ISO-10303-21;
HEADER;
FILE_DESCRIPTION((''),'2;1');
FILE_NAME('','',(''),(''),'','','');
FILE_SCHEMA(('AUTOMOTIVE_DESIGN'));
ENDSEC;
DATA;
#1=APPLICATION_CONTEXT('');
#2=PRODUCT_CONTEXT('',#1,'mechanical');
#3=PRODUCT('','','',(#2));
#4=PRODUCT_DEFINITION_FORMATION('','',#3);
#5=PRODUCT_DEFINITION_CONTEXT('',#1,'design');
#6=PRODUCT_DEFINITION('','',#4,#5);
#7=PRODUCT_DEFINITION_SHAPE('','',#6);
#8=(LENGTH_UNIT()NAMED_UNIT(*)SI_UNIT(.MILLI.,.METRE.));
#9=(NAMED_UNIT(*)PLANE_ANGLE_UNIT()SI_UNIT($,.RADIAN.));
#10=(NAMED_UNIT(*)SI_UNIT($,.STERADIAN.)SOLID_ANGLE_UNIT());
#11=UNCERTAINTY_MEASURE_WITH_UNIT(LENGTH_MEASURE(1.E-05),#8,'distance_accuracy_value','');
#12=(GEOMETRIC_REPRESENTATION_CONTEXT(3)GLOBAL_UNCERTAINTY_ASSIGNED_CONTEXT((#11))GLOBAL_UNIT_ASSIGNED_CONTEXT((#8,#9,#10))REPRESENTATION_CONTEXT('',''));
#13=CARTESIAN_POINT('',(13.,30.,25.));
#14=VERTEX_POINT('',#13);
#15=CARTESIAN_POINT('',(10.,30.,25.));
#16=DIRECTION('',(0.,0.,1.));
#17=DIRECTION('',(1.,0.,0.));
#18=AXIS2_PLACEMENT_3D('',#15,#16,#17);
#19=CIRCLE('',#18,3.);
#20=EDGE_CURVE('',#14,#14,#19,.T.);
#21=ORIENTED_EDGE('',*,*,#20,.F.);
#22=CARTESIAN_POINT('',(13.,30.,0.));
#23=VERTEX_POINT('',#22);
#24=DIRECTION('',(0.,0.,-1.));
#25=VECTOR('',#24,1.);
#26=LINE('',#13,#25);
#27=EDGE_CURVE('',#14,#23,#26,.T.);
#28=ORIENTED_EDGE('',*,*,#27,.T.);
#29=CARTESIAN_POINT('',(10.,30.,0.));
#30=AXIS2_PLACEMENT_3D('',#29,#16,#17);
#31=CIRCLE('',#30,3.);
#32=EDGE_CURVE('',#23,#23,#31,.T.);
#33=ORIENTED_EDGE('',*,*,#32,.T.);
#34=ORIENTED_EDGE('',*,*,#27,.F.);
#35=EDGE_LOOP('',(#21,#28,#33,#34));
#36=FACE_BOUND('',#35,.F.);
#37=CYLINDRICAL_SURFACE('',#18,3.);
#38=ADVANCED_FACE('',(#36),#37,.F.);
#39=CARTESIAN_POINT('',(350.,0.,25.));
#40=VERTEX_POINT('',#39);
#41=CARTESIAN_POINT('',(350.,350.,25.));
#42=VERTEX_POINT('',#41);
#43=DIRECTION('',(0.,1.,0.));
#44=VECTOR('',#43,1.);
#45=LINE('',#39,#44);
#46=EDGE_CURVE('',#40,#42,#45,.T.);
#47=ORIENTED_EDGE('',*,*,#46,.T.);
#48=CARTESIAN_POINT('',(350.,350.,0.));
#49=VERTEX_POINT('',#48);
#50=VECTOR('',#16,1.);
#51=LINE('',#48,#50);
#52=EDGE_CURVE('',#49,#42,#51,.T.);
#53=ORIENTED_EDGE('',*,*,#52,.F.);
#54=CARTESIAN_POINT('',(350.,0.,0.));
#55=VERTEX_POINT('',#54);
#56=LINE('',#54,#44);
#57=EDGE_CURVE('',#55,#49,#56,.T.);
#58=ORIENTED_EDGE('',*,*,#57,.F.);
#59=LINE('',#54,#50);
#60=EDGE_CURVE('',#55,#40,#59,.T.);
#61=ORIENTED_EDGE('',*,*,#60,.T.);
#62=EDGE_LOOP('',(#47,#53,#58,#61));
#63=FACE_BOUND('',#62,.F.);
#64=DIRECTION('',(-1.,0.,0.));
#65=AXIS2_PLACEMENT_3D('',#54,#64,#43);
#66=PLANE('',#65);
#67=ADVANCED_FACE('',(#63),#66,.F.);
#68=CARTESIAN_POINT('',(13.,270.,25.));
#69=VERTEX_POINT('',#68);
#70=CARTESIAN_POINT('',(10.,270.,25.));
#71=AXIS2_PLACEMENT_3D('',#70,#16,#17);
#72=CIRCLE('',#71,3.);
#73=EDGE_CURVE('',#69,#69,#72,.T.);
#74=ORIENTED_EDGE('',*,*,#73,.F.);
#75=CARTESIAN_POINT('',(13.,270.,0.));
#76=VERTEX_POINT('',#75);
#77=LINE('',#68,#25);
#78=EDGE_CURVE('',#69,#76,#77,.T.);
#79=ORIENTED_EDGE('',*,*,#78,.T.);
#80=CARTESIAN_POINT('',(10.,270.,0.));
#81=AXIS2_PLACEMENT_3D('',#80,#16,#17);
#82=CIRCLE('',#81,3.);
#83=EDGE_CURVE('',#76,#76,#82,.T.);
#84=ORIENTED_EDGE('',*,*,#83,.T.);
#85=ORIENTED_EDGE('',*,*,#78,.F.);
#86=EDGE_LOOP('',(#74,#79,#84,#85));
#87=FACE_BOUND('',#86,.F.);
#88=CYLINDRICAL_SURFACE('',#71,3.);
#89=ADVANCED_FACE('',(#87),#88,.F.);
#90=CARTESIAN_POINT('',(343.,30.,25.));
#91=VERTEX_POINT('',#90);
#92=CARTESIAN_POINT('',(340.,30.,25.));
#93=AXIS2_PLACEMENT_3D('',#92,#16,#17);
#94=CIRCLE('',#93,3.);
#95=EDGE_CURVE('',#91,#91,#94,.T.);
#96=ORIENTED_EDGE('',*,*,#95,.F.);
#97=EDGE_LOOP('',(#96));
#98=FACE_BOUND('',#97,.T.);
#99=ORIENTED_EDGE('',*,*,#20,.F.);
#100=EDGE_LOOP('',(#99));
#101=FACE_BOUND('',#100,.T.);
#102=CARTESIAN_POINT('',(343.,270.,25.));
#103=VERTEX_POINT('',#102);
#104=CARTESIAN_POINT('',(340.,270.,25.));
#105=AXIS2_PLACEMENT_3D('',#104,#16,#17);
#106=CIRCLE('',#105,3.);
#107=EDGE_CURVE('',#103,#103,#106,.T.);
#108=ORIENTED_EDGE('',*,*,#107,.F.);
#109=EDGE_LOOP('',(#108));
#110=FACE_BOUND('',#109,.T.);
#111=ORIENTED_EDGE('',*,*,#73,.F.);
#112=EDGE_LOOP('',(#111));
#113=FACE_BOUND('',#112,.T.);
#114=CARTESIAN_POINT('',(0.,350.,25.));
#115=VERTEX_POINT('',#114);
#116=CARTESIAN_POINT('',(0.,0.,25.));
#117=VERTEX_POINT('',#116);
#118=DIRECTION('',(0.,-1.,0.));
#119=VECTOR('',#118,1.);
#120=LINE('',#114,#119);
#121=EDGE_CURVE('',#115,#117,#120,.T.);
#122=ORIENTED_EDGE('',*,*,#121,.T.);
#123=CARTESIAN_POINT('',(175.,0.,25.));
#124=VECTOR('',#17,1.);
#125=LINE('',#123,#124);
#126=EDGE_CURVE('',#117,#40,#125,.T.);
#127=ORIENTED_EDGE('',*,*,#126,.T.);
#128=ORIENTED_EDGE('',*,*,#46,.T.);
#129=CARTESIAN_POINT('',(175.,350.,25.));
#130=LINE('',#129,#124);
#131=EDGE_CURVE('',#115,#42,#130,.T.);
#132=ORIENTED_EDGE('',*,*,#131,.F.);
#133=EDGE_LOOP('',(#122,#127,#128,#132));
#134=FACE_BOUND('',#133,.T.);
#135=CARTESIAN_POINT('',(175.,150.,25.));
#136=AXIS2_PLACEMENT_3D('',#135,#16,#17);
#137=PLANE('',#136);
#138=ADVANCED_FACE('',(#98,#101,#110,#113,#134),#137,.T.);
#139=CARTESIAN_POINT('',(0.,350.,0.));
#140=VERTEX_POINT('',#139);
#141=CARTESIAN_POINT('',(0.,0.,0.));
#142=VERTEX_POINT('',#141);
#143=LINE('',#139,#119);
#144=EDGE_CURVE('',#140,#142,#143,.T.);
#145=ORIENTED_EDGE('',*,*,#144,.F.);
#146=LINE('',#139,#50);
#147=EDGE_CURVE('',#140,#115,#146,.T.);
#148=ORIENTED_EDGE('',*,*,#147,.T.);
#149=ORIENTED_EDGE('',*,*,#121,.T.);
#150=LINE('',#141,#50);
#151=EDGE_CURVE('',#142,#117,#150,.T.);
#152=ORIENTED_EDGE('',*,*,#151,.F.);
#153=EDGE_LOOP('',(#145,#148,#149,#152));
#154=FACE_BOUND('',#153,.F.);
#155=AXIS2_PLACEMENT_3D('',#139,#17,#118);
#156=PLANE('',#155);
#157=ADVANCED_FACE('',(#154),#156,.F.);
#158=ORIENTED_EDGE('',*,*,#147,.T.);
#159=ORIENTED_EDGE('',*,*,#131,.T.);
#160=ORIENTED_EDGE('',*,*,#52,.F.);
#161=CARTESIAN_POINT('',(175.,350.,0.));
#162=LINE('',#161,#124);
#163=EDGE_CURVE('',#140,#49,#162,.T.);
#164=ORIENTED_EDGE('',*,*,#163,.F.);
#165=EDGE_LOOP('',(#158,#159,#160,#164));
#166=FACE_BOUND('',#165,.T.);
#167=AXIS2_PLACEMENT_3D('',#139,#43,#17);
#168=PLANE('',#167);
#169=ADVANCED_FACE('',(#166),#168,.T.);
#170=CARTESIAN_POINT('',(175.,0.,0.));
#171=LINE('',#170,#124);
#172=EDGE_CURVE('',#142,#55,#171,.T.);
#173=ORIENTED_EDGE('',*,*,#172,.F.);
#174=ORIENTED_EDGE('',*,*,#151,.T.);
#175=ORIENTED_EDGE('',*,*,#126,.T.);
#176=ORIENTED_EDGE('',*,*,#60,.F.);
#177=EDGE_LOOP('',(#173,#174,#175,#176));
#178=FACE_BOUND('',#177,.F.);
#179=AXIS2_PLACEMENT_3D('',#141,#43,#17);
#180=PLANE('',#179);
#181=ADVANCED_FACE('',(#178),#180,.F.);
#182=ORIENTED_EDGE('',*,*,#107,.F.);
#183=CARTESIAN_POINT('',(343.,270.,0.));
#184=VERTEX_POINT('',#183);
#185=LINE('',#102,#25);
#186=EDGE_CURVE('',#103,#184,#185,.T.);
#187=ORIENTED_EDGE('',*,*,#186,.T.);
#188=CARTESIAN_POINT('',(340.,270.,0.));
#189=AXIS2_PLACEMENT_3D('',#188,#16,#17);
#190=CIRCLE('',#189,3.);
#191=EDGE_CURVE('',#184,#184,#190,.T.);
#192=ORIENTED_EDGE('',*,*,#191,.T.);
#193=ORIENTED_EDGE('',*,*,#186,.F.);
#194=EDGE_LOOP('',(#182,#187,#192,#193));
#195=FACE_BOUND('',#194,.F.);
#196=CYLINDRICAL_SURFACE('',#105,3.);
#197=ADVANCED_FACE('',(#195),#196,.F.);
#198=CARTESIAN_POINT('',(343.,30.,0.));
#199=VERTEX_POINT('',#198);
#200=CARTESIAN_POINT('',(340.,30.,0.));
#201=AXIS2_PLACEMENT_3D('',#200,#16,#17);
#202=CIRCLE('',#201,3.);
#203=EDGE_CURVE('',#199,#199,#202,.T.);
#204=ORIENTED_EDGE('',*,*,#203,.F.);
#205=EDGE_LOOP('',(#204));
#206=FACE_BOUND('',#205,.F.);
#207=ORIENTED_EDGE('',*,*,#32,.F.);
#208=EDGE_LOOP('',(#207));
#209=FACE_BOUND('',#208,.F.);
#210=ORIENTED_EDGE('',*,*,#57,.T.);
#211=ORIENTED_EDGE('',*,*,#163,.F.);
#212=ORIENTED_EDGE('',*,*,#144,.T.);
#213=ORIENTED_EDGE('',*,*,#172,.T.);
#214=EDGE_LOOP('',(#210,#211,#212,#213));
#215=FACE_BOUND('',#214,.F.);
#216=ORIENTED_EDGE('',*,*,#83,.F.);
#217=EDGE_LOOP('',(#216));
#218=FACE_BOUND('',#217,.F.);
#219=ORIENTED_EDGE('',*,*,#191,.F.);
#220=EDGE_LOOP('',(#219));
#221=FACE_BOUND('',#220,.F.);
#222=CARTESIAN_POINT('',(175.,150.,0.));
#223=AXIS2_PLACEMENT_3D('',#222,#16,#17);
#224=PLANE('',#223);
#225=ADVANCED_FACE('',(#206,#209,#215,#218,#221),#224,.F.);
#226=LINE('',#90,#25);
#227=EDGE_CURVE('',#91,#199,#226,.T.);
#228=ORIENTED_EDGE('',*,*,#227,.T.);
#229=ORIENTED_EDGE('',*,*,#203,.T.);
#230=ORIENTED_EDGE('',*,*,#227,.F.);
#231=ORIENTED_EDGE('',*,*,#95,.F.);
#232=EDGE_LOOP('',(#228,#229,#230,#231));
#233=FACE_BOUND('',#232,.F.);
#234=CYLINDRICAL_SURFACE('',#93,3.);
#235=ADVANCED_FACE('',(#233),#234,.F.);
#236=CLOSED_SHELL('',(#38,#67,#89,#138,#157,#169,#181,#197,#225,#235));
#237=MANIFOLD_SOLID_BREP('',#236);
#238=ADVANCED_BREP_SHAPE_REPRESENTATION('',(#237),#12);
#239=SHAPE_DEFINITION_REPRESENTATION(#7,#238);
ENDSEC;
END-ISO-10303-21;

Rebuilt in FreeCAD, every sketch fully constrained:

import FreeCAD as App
import Part
import Sketcher
from FreeCAD import Vector
Q = App.Units.Quantity


def add_polygon(sketch, points):
    """Adds a closed chain of lines whose ends are joined by coincident constraints."""
    first, n = sketch.GeometryCount, len(points)
    for a, b in zip(points, points[1:] + points[:1]):
        sketch.addGeometry(Part.LineSegment(App.Vector(*a, 0), App.Vector(*b, 0)), False)
    for i in range(n):
        sketch.addConstraint(Sketcher.Constraint("Coincident", first + i, 2, first + (i + 1) % n, 1))

doc = App.newDocument("Part")
body = doc.addObject("PartDesign::Body", "Body")

# Sketch on XY plane
sketch1 = body.newObject("Sketcher::SketchObject", "Sketch")
sketch1.AttachmentSupport = (doc.getObject("XY_Plane"), [""])
sketch1.MapMode = "FlatFace"
add_polygon(sketch1, [(0, 0), (350, 0), (350, 350), (0, 350)])  # lines 0-3
sketch1.addConstraint([
    Sketcher.Constraint("Horizontal", 0),
    Sketcher.Constraint("Vertical", 1),
    Sketcher.Constraint("Horizontal", 2),
    Sketcher.Constraint("Vertical", 3),
    Sketcher.Constraint("Coincident", 3, 2, -1, 1),
    Sketcher.Constraint("Equal", 2, 1),
    Sketcher.Constraint("DistanceX", 0, 1, 0, 2, Q("350 mm")),
])
pad1 = body.newObject("PartDesign::Pad", "Pad")
pad1.Profile = sketch1
pad1.Length = 25

# Sketch on XY plane
sketch2 = body.newObject("Sketcher::SketchObject", "Sketch001")
sketch2.AttachmentSupport = (doc.getObject("XY_Plane"), [""])
sketch2.MapMode = "FlatFace"
sketch2.AttachmentOffset = App.Placement(Vector(0, 0, 25), App.Rotation())
sketch2.addGeometry([
    Part.Circle(Vector(10, 270, 0), Vector(0, 0, 1), 3),
    Part.Circle(Vector(340, 270, 0), Vector(0, 0, 1), 3),
    Part.Circle(Vector(340, 30, 0), Vector(0, 0, 1), 3),
    Part.Circle(Vector(10, 30, 0), Vector(0, 0, 1), 3),
], False)
sketch2.addConstraint([
    Sketcher.Constraint("Equal", 0, 1),
    Sketcher.Constraint("Equal", 1, 2),
    Sketcher.Constraint("Equal", 2, 3),
    Sketcher.Constraint("Horizontal", 0, 3, 1, 3),
    Sketcher.Constraint("Horizontal", 2, 3, 3, 3),
    Sketcher.Constraint("Vertical", 1, 3, 2, 3),
    Sketcher.Constraint("Vertical", 0, 3, 3, 3),
    Sketcher.Constraint("Diameter", 0, Q("6 mm")),
    Sketcher.Constraint("DistanceX", -1, 1, 0, 3, Q("10 mm")),
    Sketcher.Constraint("DistanceY", -1, 1, 0, 3, Q("270 mm")),
    Sketcher.Constraint("DistanceX", -1, 1, 1, 3, Q("340 mm")),
    Sketcher.Constraint("DistanceY", -1, 1, 2, 3, Q("30 mm")),
])
pocket1 = body.newObject("PartDesign::Pocket", "Pocket")
pocket1.Profile = sketch2
pocket1.Type = "ThroughAll"

doc.recompute()
